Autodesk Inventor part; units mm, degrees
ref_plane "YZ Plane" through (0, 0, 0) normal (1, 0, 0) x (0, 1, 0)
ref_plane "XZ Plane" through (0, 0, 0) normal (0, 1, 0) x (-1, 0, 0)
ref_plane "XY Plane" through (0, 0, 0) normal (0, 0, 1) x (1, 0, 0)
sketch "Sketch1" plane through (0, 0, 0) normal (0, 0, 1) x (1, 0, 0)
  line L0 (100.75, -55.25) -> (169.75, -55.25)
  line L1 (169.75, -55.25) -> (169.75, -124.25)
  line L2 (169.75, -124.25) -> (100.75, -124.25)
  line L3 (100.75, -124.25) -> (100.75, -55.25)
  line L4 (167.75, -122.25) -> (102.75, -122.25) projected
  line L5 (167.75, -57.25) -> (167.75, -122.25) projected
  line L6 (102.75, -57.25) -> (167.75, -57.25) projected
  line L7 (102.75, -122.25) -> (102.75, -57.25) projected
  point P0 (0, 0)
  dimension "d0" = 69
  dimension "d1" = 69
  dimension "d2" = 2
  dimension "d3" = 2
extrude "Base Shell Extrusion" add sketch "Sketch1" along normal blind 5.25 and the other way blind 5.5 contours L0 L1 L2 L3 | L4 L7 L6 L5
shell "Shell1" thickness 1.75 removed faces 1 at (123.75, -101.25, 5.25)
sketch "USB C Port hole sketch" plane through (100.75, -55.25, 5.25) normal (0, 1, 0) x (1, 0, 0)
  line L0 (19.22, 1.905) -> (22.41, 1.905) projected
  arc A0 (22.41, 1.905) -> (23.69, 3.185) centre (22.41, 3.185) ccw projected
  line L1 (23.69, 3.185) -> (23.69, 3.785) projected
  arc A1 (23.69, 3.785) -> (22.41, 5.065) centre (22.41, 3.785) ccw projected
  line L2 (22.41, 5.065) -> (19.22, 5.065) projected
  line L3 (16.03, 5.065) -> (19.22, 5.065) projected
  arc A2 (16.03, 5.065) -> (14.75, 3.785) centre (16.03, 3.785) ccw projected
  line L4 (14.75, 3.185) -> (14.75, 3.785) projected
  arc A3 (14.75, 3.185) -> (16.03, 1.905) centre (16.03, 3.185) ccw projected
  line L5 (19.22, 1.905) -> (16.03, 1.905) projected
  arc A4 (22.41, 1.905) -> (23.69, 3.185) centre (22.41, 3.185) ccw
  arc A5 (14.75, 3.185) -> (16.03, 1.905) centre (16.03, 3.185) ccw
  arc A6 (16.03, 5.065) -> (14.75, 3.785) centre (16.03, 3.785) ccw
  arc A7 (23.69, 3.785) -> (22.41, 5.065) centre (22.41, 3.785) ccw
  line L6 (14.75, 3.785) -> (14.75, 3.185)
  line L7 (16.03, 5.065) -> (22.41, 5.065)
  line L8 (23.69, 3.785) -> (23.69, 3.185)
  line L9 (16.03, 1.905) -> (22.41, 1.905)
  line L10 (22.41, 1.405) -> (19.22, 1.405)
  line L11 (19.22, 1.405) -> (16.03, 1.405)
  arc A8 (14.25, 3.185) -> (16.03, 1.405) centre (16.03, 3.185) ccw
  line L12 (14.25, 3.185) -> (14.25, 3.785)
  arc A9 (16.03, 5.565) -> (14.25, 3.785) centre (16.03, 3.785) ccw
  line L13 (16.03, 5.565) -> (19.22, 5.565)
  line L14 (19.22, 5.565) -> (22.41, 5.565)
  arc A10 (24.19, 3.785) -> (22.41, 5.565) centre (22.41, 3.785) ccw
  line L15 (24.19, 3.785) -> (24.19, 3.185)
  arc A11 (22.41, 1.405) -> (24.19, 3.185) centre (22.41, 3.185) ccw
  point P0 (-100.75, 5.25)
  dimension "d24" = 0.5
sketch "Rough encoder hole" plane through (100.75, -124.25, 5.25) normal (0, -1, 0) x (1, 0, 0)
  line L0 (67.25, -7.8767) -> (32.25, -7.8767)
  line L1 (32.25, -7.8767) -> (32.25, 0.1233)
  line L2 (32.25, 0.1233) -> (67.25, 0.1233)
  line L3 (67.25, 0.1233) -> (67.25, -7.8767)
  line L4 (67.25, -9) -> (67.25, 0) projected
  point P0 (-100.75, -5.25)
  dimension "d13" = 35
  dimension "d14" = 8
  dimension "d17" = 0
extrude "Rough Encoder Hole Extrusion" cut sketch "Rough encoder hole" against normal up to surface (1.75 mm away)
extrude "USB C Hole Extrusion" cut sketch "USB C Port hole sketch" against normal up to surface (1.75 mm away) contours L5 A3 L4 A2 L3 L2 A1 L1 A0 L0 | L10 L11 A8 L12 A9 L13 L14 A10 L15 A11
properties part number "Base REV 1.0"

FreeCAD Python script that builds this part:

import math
import FreeCAD as App
import Part
import Sketcher
from FreeCAD import Vector
Q = App.Units.Quantity


def faces_at(feature, points):
    """Names of the faces that lie closest to the given points."""
    faces = feature.Shape.Faces
    near = lambda p: min(range(len(faces)), key=lambda i: faces[i].distToShape(Part.Vertex(*p))[0])
    return sorted({f"Face{near(p) + 1}" for p in points})


def add_polygon(sketch, points):
    """Adds a closed chain of lines whose ends are joined by coincident constraints."""
    first, n = sketch.GeometryCount, len(points)
    for a, b in zip(points, points[1:] + points[:1]):
        sketch.addGeometry(Part.LineSegment(App.Vector(*a, 0), App.Vector(*b, 0)), False)
    for i in range(n):
        sketch.addConstraint(Sketcher.Constraint("Coincident", first + i, 2, first + (i + 1) % n, 1))

doc = App.newDocument("Part")
params = doc.addObject("Spreadsheet::Sheet", "Params")
for row, (alias, value) in enumerate([
    ("sketch1_width", "69 mm"),
    ("pad1_length", "5.25 mm"),
    ("pad1_length2", "5.5 mm"),
    ("thickness_wall", "1.75 mm"),
    ("sketch2_width", "35 mm"),
    ("sketch2_height", "8 mm"),
    ("pocket1_length", "1.75 mm"),
    ("sketch3_radius", "1.78 mm"),
    ("sketch3_height", "0.6 mm"),
    ("sketch3_width", "6.38 mm"),
    ("pocket2_length", "1.75 mm"),
], start=1):
    params.set(f"A{row}", alias)
    params.set(f"B{row}", "=" + value)
    params.setAlias(f"B{row}", alias)

body = doc.addObject("PartDesign::Body", "Body")

# Sketch on XY plane
sketch1 = body.newObject("Sketcher::SketchObject", "Sketch")
sketch1.AttachmentSupport = (doc.getObject("XY_Plane"), [""])
sketch1.MapMode = "FlatFace"
add_polygon(sketch1, [(169.75, -55.25), (100.75, -55.25), (100.75, -124.25), (169.75, -124.25)])  # lines 0-3
sketch1.addConstraint(Sketcher.Constraint("Horizontal", 0))
sketch1.addConstraint(Sketcher.Constraint("Vertical", 1))
sketch1.addConstraint(Sketcher.Constraint("Horizontal", 2))
sketch1.addConstraint(Sketcher.Constraint("Vertical", 3))
sketch1.addConstraint(Sketcher.Constraint("Equal", 2, 1))
sketch1.addConstraint(Sketcher.Constraint("DistanceX", 0, 2, 0, 1, Q("69 mm")))
sketch1.addConstraint(Sketcher.Constraint("DistanceX", -1, 1, 0, 2, Q("100.75 mm")))
sketch1.addConstraint(Sketcher.Constraint("DistanceY", 0, 2, -1, 1, Q("55.25 mm")))
sketch1.setExpression("Constraints[9]", "Params.sketch1_width")
pad1 = body.newObject("PartDesign::Pad", "Pad")
pad1.Profile = sketch1
pad1.Type = "TwoLengths"
pad1.setExpression("Length", "Params.pad1_length")
pad1.setExpression("Length2", "Params.pad1_length2")
doc.recompute()

thickness = body.newObject("PartDesign::Thickness", "Thickness")
thickness.Base = (pad1, faces_at(pad1, [(123.75, -101.25, 5.25)]))
thickness.setExpression("Value", "Params.thickness_wall")
thickness.Reversed = True
thickness.Join = "Intersection"

# Sketch on XZ plane
sketch2 = body.newObject("Sketcher::SketchObject", "Sketch001")
sketch2.AttachmentSupport = (doc.getObject("XZ_Plane"), [""])
sketch2.MapMode = "FlatFace"
sketch2.AttachmentOffset = App.Placement(Vector(0, 0, 124.25), App.Rotation())
add_polygon(sketch2, [(133, -2.6267), (168, -2.6267), (168, 5.3733), (133, 5.3733)])  # lines 0-3
sketch2.addConstraint(Sketcher.Constraint("Horizontal", 0))
sketch2.addConstraint(Sketcher.Constraint("Vertical", 1))
sketch2.addConstraint(Sketcher.Constraint("Horizontal", 2))
sketch2.addConstraint(Sketcher.Constraint("Vertical", 3))
sketch2.addConstraint(Sketcher.Constraint("DistanceX", 0, 1, 0, 2, Q("35 mm")))
sketch2.addConstraint(Sketcher.Constraint("DistanceY", 1, 1, 1, 2, Q("8 mm")))
sketch2.addConstraint(Sketcher.Constraint("DistanceX", -1, 1, 0, 2, Q("168 mm")))
sketch2.addConstraint(Sketcher.Constraint("DistanceY", 0, 2, -1, 1, Q("2.6267 mm")))
sketch2.setExpression("Constraints[8]", "Params.sketch2_width")
sketch2.setExpression("Constraints[9]", "Params.sketch2_height")
pocket1 = body.newObject("PartDesign::Pocket", "Pocket")
pocket1.Profile = sketch2
pocket1.setExpression("Length", "Params.pocket1_length")

# Sketch on XZ plane
sketch3 = body.newObject("Sketcher::SketchObject", "Sketch002")
sketch3.AttachmentSupport = (doc.getObject("XZ_Plane"), [""])
sketch3.MapMode = "FlatFace"
sketch3.AttachmentOffset = App.Placement(Vector(0, 0, 55.25), App.Rotation())
sketch3.addGeometry(Part.ArcOfCircle(Part.Circle(Vector(123.16, 2.065, 0), Vector(0, 0, 1), 1.78), math.radians(0), math.radians(90)), False)
sketch3.addGeometry(Part.LineSegment(Vector(124.94, 2.065, 0), Vector(124.94, 1.465, 0)), False)
sketch3.addGeometry(Part.ArcOfCircle(Part.Circle(Vector(123.16, 1.465, 0), Vector(0, 0, 1), 1.78), math.radians(-90), math.radians(0)), False)
sketch3.addGeometry(Part.LineSegment(Vector(123.16, -0.315, 0), Vector(116.78, -0.315, 0)), False)
sketch3.addGeometry(Part.ArcOfCircle(Part.Circle(Vector(116.78, 1.465, 0), Vector(0, 0, 1), 1.78), math.radians(180), math.radians(270)), False)
sketch3.addGeometry(Part.LineSegment(Vector(115, 1.465, 0), Vector(115, 2.065, 0)), False)
sketch3.addGeometry(Part.ArcOfCircle(Part.Circle(Vector(116.78, 2.065, 0), Vector(0, 0, 1), 1.78), math.radians(90), math.radians(180)), False)
sketch3.addGeometry(Part.LineSegment(Vector(116.78, 3.845, 0), Vector(123.16, 3.845, 0)), False)
sketch3.addConstraint(Sketcher.Constraint("Tangent", 0, 1, 1, 1))
sketch3.addConstraint(Sketcher.Constraint("Tangent", 1, 2, 2, 2))
sketch3.addConstraint(Sketcher.Constraint("Tangent", 2, 1, 3, 1))
sketch3.addConstraint(Sketcher.Constraint("Tangent", 3, 2, 4, 2))
sketch3.addConstraint(Sketcher.Constraint("Tangent", 4, 1, 5, 1))
sketch3.addConstraint(Sketcher.Constraint("Tangent", 5, 2, 6, 2))
sketch3.addConstraint(Sketcher.Constraint("Tangent", 6, 1, 7, 1))
sketch3.addConstraint(Sketcher.Constraint("Tangent", 7, 2, 0, 2))
sketch3.addConstraint(Sketcher.Constraint("Vertical", 1))
sketch3.addConstraint(Sketcher.Constraint("Horizontal", 3))
sketch3.addConstraint(Sketcher.Constraint("Vertical", 5))
sketch3.addConstraint(Sketcher.Constraint("Horizontal", 7))
sketch3.addConstraint(Sketcher.Constraint("Equal", 0, 2))
sketch3.addConstraint(Sketcher.Constraint("Equal", 2, 4))
sketch3.addConstraint(Sketcher.Constraint("Equal", 4, 6))
sketch3.addConstraint(Sketcher.Constraint("Radius", 0, Q("1.78 mm")))
sketch3.addConstraint(Sketcher.Constraint("DistanceY", 1, 2, 1, 1, Q("0.6 mm")))
sketch3.addConstraint(Sketcher.Constraint("DistanceX", -1, 1, 4, 1, Q("115 mm")))
sketch3.addConstraint(Sketcher.Constraint("DistanceX", 3, 2, 3, 1, Q("6.38 mm")))
sketch3.addConstraint(Sketcher.Constraint("DistanceY", -1, 1, 0, 3, Q("2.065 mm")))
sketch3.setExpression("Constraints[15]", "Params.sketch3_radius")
sketch3.setExpression("Constraints[16]", "Params.sketch3_height")
sketch3.setExpression("Constraints[18]", "Params.sketch3_width")
pocket2 = body.newObject("PartDesign::Pocket", "Pocket001")
pocket2.Profile = sketch3
pocket2.setExpression("Length", "Params.pocket2_length")
pocket2.Reversed = True

doc.recompute()
